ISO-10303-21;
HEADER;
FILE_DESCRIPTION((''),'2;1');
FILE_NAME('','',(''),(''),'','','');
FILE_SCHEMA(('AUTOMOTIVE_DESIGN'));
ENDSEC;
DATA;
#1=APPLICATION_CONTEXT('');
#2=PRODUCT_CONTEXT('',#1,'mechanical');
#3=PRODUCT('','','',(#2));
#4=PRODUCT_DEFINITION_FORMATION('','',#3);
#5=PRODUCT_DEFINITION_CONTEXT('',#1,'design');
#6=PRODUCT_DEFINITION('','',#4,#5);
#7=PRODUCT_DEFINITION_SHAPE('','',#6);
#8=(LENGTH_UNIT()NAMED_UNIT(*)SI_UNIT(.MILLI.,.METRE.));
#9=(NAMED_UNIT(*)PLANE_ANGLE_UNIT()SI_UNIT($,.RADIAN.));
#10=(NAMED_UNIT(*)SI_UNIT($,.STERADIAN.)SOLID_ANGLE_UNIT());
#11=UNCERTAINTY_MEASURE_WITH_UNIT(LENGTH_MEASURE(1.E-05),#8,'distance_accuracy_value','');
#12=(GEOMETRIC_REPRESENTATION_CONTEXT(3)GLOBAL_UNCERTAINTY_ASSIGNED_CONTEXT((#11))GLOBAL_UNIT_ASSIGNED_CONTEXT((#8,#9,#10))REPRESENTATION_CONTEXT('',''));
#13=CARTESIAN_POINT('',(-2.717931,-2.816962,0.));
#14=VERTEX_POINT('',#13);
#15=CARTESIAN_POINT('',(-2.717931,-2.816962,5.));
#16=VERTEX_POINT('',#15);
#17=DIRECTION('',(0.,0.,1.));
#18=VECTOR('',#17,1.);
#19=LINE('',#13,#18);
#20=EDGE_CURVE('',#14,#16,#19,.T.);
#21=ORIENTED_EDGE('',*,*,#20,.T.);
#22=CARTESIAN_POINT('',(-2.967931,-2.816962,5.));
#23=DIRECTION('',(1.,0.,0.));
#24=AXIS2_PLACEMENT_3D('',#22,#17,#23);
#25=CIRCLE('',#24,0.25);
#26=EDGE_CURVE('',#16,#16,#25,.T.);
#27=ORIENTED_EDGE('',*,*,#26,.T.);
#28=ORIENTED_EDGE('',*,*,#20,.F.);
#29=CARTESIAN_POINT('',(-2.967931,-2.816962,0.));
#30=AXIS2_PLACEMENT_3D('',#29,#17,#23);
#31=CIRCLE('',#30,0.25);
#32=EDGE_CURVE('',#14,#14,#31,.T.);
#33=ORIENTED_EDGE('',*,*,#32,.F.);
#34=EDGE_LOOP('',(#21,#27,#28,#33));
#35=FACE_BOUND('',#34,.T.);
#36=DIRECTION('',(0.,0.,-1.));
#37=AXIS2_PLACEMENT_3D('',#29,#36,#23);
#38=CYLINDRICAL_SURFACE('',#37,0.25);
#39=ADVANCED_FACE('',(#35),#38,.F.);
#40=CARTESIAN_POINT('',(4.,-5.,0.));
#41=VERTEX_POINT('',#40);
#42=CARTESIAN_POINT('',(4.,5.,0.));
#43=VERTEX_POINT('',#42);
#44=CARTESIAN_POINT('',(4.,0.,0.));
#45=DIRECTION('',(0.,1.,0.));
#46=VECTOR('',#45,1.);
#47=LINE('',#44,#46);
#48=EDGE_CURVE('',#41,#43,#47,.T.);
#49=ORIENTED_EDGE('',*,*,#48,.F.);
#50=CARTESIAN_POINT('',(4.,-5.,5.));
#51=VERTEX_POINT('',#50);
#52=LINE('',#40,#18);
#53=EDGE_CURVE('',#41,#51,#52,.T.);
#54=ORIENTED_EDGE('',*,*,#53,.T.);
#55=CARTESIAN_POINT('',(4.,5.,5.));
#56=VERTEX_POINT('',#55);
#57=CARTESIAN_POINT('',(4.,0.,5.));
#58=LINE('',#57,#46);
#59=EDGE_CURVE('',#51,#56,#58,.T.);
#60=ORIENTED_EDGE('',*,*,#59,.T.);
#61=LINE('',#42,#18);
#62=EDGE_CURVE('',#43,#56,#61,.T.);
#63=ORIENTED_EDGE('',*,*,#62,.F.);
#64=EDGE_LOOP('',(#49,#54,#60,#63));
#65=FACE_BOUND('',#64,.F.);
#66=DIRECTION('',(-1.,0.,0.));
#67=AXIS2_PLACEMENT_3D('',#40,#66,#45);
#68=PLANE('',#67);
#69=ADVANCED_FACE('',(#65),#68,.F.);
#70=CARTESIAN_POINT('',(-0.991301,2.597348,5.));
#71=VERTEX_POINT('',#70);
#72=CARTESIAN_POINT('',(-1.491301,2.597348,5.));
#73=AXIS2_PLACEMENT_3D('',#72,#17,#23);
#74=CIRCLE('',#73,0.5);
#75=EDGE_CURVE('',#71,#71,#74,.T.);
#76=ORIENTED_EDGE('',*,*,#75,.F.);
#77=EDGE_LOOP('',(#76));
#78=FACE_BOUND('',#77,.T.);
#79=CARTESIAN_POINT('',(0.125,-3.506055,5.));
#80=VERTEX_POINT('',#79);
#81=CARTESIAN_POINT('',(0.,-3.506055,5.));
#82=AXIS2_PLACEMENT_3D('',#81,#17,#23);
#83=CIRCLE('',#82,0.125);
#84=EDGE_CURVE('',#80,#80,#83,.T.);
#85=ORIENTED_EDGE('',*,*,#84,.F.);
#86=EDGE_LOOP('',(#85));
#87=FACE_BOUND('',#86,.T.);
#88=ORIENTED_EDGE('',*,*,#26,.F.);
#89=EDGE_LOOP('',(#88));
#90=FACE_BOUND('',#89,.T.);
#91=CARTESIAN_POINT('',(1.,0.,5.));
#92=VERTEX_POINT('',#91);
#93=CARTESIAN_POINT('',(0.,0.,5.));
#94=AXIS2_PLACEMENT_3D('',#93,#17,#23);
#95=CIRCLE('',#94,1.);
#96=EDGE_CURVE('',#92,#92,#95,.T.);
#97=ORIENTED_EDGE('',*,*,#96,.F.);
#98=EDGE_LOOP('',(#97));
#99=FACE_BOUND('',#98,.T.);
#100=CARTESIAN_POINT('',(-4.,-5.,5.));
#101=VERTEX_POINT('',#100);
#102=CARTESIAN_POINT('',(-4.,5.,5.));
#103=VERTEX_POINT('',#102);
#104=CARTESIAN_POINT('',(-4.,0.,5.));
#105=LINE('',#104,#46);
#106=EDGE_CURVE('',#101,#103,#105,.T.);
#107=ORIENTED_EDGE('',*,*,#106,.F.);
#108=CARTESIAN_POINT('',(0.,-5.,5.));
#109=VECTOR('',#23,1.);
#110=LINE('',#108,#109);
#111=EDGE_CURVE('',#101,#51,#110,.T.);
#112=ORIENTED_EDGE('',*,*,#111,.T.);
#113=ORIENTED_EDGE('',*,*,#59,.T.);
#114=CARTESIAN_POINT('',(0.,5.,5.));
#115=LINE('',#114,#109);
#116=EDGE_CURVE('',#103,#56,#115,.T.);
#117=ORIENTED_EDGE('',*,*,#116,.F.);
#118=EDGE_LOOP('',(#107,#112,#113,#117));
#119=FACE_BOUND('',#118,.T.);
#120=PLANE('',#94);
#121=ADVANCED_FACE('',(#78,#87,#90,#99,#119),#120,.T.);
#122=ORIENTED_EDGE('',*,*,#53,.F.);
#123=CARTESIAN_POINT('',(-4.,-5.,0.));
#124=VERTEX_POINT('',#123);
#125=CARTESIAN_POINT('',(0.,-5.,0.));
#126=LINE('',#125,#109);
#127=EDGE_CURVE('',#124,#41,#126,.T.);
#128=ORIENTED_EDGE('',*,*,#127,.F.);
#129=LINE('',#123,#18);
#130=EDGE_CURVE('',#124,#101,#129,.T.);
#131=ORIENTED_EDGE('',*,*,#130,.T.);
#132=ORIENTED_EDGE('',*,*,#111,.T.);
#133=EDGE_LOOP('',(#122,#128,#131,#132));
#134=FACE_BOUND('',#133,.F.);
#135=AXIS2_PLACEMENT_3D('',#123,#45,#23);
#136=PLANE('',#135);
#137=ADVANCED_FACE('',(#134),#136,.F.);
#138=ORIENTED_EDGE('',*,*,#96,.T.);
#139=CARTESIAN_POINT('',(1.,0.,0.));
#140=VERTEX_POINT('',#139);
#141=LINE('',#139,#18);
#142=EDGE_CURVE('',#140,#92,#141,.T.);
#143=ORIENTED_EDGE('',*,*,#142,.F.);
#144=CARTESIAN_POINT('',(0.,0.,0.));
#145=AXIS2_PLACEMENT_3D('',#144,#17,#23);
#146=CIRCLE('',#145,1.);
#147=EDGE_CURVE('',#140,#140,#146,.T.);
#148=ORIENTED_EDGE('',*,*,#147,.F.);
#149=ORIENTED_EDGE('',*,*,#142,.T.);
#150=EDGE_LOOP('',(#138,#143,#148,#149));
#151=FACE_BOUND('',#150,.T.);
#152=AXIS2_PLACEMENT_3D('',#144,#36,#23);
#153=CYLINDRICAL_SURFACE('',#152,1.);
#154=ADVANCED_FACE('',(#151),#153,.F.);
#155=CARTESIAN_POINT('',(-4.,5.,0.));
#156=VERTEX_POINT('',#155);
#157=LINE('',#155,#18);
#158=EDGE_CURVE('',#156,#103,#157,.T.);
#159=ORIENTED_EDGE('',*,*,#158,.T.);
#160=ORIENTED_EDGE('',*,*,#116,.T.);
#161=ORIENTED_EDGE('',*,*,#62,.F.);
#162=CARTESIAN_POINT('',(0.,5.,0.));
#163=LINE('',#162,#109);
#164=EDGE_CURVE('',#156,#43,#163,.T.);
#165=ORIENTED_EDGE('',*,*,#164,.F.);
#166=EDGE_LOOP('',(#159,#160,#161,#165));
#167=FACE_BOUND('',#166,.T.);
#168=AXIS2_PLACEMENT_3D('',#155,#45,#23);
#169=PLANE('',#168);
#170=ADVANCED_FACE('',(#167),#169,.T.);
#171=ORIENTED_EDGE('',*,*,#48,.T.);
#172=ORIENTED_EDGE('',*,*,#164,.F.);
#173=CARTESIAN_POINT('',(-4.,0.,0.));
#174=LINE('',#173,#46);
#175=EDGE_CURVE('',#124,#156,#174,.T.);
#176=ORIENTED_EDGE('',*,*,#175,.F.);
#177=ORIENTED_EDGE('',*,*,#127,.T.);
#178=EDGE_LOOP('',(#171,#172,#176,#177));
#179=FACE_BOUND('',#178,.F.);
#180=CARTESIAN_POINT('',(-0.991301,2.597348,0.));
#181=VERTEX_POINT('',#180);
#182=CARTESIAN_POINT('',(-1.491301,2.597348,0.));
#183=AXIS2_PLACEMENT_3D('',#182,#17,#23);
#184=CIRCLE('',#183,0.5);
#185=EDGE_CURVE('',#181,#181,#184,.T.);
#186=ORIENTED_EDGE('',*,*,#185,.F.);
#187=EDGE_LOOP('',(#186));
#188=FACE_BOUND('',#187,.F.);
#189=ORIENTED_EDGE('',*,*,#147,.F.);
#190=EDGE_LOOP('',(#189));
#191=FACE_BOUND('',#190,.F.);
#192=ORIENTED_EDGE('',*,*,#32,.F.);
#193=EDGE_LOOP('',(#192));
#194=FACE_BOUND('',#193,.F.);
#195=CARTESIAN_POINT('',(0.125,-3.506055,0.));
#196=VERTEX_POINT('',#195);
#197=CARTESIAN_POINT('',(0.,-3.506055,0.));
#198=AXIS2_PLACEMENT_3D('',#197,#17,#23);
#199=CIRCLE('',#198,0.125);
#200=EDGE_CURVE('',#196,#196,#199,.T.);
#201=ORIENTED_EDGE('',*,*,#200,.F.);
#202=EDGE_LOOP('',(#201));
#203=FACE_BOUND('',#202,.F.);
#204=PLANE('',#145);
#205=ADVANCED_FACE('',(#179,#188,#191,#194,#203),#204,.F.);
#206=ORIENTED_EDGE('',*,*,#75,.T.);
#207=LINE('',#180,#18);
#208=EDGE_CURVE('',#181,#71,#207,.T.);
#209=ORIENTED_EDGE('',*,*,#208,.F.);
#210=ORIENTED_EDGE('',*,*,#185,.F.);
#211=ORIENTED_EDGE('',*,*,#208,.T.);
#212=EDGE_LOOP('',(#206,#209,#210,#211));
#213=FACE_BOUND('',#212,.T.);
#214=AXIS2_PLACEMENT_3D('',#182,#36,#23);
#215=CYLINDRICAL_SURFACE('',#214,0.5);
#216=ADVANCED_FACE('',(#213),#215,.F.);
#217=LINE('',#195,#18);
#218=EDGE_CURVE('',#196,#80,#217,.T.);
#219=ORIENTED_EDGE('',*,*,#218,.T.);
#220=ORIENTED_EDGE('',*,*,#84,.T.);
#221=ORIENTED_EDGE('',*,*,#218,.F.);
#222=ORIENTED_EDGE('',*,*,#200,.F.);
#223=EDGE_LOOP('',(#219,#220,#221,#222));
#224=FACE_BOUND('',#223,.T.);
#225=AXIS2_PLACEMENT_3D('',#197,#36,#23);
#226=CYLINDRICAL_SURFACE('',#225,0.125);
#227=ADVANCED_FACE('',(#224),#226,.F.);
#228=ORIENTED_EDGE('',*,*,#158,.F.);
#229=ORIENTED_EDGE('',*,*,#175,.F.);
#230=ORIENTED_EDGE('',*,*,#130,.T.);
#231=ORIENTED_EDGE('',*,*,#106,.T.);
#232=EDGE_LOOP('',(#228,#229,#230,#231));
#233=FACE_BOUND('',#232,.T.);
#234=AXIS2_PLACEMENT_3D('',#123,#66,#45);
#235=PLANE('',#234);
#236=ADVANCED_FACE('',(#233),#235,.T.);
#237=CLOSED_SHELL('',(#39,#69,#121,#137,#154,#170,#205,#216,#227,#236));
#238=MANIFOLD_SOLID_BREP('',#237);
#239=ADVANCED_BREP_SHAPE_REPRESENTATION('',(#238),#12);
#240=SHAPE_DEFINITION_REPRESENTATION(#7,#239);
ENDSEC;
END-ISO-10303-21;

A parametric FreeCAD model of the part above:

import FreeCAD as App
import Part
import Sketcher
from FreeCAD import Vector
Q = App.Units.Quantity


def add_polygon(sketch, points):
    """Adds a closed chain of lines whose ends are joined by coincident constraints."""
    first, n = sketch.GeometryCount, len(points)
    for a, b in zip(points, points[1:] + points[:1]):
        sketch.addGeometry(Part.LineSegment(App.Vector(*a, 0), App.Vector(*b, 0)), False)
    for i in range(n):
        sketch.addConstraint(Sketcher.Constraint("Coincident", first + i, 2, first + (i + 1) % n, 1))

doc = App.newDocument("Part")
body = doc.addObject("PartDesign::Body", "Body")

sketch1 = doc.addObject("Sketcher::SketchObject", "Sketch")
body.addObject(sketch1)
sketch1.AttachmentSupport = (doc.XY_Plane, [""])
sketch1.MapMode = "FlatFace"
add_polygon(sketch1, [(-4, 5), (-4, -5), (4, -5), (4, 5)])
sketch1.addGeometry(Part.Circle(Vector(-2.97, -2.82, 0), Vector(0, 0, 1), 0.25), False)
sketch1.addGeometry(Part.Circle(Vector(0, -3.51, 0), Vector(0, 0, 1), 0.12), False)
sketch1.addGeometry(Part.Circle(Vector(-1.49, 2.6, 0), Vector(0, 0, 1), 0.5), False)
sketch1.addGeometry(Part.Circle(Vector(0, 0, 0), Vector(0, 0, 1), 1), False)
sketch1.addConstraint([
    Sketcher.Constraint("Vertical", 0),
    Sketcher.Constraint("Horizontal", 1),
    Sketcher.Constraint("Vertical", 2),
    Sketcher.Constraint("Horizontal", 3),
    Sketcher.Constraint("Coincident", 7, 3, -1, 1),
    Sketcher.Constraint("Symmetric", 0, 2, 2, 2, -1, 1),
    Sketcher.Constraint("PointOnObject", 5, 3, -2),
    Sketcher.Constraint("Diameter", 6, Q("1 mm")),
    Sketcher.Constraint("Diameter", 7, Q("2 mm")),
    Sketcher.Constraint("Diameter", 4, Q("0.5 mm")),
    Sketcher.Constraint("Diameter", 5, Q("0.25 mm")),
    Sketcher.Constraint("DistanceX", 1, 1, 1, 2, Q("8 mm")),
    Sketcher.Constraint("DistanceY", 0, 2, 0, 1, Q("10 mm")),
    Sketcher.Constraint("DistanceX", 6, 3, -1, 1, Q("1.491301 mm")),
    Sketcher.Constraint("DistanceX", 4, 3, -1, 1, Q("2.967931 mm")),
    Sketcher.Constraint("DistanceY", -1, 1, 6, 3, Q("2.597348 mm")),
    Sketcher.Constraint("DistanceY", 4, 3, 6, 3, Q("5.41431 mm")),
    Sketcher.Constraint("DistanceY", 5, 3, -1, 1, Q("3.506055 mm")),
])
pad1 = doc.addObject("PartDesign::Pad", "Pad")
body.addObject(pad1)
pad1.Profile = sketch1
pad1.Length = 5

doc.recompute()
